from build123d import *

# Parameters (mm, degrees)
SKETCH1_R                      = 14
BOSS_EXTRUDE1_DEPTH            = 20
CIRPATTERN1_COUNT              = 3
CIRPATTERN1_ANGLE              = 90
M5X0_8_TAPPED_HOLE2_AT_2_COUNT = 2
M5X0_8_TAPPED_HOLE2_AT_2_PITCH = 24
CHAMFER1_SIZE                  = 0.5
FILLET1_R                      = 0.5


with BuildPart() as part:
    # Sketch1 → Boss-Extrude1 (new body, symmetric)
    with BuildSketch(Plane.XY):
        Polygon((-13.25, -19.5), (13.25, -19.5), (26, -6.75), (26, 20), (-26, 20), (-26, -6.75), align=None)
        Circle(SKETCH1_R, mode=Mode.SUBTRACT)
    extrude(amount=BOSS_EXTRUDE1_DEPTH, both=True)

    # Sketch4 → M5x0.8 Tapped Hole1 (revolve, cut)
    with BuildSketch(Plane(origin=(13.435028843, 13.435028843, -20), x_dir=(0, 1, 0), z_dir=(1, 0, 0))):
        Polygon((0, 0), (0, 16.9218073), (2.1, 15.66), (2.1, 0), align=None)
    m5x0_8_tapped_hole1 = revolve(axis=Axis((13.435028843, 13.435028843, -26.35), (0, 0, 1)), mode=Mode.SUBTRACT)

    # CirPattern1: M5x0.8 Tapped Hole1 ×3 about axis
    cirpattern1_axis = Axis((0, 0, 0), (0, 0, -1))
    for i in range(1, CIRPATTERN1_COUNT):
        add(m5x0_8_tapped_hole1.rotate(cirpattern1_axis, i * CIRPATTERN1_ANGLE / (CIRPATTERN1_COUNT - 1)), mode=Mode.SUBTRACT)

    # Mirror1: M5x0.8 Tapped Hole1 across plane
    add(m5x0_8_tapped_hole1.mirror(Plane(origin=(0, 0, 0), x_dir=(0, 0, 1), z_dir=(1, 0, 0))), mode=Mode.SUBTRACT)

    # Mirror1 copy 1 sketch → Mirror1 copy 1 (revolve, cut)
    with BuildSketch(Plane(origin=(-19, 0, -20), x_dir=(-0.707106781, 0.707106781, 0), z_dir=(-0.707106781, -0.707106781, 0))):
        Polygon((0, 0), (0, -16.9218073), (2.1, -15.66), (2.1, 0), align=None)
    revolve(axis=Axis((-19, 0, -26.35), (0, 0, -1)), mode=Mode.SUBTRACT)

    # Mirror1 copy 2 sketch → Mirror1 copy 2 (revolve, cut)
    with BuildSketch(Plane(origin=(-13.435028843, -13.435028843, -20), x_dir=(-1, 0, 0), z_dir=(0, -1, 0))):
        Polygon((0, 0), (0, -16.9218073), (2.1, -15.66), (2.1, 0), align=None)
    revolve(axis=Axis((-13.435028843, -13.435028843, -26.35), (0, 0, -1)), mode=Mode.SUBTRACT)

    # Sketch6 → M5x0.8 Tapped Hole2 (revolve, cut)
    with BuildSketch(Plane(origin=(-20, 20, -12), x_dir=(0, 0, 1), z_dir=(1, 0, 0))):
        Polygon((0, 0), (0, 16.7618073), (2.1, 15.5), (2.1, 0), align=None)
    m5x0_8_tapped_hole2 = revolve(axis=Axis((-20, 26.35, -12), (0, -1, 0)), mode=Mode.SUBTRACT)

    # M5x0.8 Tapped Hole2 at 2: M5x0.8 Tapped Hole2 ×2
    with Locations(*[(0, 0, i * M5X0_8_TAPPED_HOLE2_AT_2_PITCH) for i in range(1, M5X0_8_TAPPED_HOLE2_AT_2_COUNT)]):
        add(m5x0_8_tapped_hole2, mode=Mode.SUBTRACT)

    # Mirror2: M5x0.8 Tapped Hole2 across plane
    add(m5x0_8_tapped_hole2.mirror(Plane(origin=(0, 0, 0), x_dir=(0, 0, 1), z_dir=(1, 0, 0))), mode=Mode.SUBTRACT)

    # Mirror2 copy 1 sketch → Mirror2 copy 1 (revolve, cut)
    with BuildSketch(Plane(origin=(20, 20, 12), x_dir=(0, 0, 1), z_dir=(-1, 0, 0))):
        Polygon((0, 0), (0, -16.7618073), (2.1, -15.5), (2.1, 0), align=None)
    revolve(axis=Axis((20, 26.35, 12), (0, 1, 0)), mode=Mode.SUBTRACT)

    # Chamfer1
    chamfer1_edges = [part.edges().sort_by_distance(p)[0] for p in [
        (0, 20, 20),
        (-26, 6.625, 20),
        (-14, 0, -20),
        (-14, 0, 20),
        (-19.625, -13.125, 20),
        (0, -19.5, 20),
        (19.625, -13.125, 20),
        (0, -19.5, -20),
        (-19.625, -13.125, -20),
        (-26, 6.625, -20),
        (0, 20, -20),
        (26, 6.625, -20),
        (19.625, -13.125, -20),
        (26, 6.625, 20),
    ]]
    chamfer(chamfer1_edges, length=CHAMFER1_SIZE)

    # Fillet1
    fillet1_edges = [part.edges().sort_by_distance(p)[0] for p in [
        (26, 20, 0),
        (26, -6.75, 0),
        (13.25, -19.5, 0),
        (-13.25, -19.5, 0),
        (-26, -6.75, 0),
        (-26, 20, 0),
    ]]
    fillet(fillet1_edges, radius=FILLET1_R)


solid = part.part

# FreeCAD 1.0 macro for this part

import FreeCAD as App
import Part
import Sketcher

V = App.Vector
Q = App.Units.Quantity


def edges_at(feature, points):
    """Names of the edges that pass closest to the given points."""
    edges = feature.Shape.Edges
    near = lambda p: min(range(len(edges)), key=lambda i: edges[i].distToShape(Part.Vertex(*p))[0])
    return sorted({f"Edge{near(p) + 1}" for p in points})


def add_polygon(sketch, points):
    """Adds a closed chain of lines whose ends are joined by coincident constraints."""
    first, n = sketch.GeometryCount, len(points)
    for a, b in zip(points, points[1:] + points[:1]):
        sketch.addGeometry(Part.LineSegment(App.Vector(*a, 0), App.Vector(*b, 0)), False)
    for i in range(n):
        sketch.addConstraint(Sketcher.Constraint("Coincident", first + i, 2, first + (i + 1) % n, 1))

doc = App.newDocument("Part")
body = doc.addObject("PartDesign::Body", "Body")

# Sketch on XY plane
sketch1 = body.newObject("Sketcher::SketchObject", "Sketch")
sketch1.AttachmentSupport = (doc.getObject("XY_Plane"), [""])
sketch1.MapMode = "FlatFace"
add_polygon(sketch1, [(-13.25, -19.5), (13.25, -19.5), (26, -6.75), (26, 20), (-26, 20), (-26, -6.75)])  # lines 0-5
sketch1.addGeometry(Part.Circle(V(0, 0, 0), V(0, 0, 1), 14), False)  # 6
sketch1.addConstraint(Sketcher.Constraint("Horizontal", 0))
sketch1.addConstraint(Sketcher.Constraint("Vertical", 2))
sketch1.addConstraint(Sketcher.Constraint("Horizontal", 3))
sketch1.addConstraint(Sketcher.Constraint("Vertical", 4))
sketch1.addConstraint(Sketcher.Constraint("Coincident", 6, 3, -1, 1))
sketch1.addConstraint(Sketcher.Constraint("Symmetric", 1, 2, 4, 2, -2))
sketch1.addConstraint(Sketcher.Constraint("Perpendicular", 1, 5))
sketch1.addConstraint(Sketcher.Constraint("Equal", 1, 5))
sketch1.addConstraint(Sketcher.Constraint("Diameter", 6, 28.0))
sketch1.addConstraint(Sketcher.Constraint("DistanceX", 3, 2, 3, 1, 52.0))
sketch1.addConstraint(Sketcher.Constraint("DistanceX", 0, 1, 0, 2, 26.5))
sketch1.addConstraint(Sketcher.Constraint("DistanceY", -1, 1, 2, 2, 20.0))
sketch1.addConstraint(Sketcher.Constraint("DistanceY", 2, 1, 2, 2, 26.75))
pad1 = body.newObject("PartDesign::Pad", "Pad")
pad1.Profile = sketch1
pad1.Length = 40
pad1.Midplane = True

# Sketch on YZ plane
sketch2 = body.newObject("Sketcher::SketchObject", "Sketch001")
sketch2.AttachmentSupport = (doc.getObject("YZ_Plane"), [""])
sketch2.MapMode = "FlatFace"
sketch2.AttachmentOffset = App.Placement(V(0, 0, 13.435029), App.Rotation())
add_polygon(sketch2, [(13.435029, -3.078193), (13.435029, -20), (15.535029, -20), (15.535029, -4.34)])  # lines 0-3
sketch2.addGeometry(Part.LineSegment(V(13.435029, -20, 0), V(13.435029, -3.078193, 0)), True)  # axis
sketch2.addConstraint(Sketcher.Constraint("Vertical", 0))
sketch2.addConstraint(Sketcher.Constraint("Horizontal", 1))
sketch2.addConstraint(Sketcher.Constraint("Vertical", 2))
sketch2.addConstraint(Sketcher.Constraint("Vertical", 4))
sketch2.addConstraint(Sketcher.Constraint("Coincident", 4, 1, 0, 2))
sketch2.addConstraint(Sketcher.Constraint("Equal", 0, 4))
sketch2.addConstraint(Sketcher.Constraint("Angle", 3, Q("149 deg")))
sketch2.addConstraint(Sketcher.Constraint("DistanceX", 1, 1, 1, 2, 2.1))
sketch2.addConstraint(Sketcher.Constraint("DistanceY", 0, 2, -1, 1, 20.0))
sketch2.addConstraint(Sketcher.Constraint("DistanceY", 2, 1, 2, 2, 15.66))
sketch2.addConstraint(Sketcher.Constraint("DistanceX", -1, 1, 0, 2, 13.435029))
groove = body.newObject("PartDesign::Groove", "Groove")
groove.Profile = sketch2
groove.ReferenceAxis = (sketch2, ["Axis0"])
groove.Angle = 360
doc.recompute()

polarpattern = body.newObject("PartDesign::PolarPattern", "PolarPattern")
polarpattern.Originals = [groove]
polarpattern.Axis = (doc.getObject("Z_Axis"), [""])
polarpattern.Angle = 90
polarpattern.Occurrences = 3
polarpattern.Reversed = True
body.Tip = polarpattern
doc.recompute()

mirrored = body.newObject("PartDesign::Mirrored", "Mirrored")
mirrored.Originals = [groove]
mirrored.MirrorPlane = (doc.getObject("YZ_Plane"), [""])
body.Tip = mirrored

# Sketch on an angled plane
sketch3 = body.newObject("Sketcher::SketchObject", "Sketch002")
sketch3.Placement = App.Placement(V(-19, 0, -20), App.Rotation(V(-0.707106781, 0.707106781, 0), V(0, 0, -0.999999999), V(-0.707106781, -0.707106781, 0), "ZXY"))
add_polygon(sketch3, [(0, 0), (0, -16.921807), (2.1, -15.66), (2.1, 0)])  # lines 0-3
sketch3.addConstraint(Sketcher.Constraint("Vertical", 0))
sketch3.addConstraint(Sketcher.Constraint("Vertical", 2))
sketch3.addConstraint(Sketcher.Constraint("Horizontal", 3))
sketch3.addConstraint(Sketcher.Constraint("Coincident", 3, 2, -1, 1))
sketch3.addConstraint(Sketcher.Constraint("Angle", 1, Q("31 deg")))
sketch3.addConstraint(Sketcher.Constraint("DistanceX", 3, 2, 3, 1, 2.1))
sketch3.addConstraint(Sketcher.Constraint("DistanceY", 2, 1, 2, 2, 15.66))
groove2 = body.newObject("PartDesign::Groove", "Groove001")
groove2.Profile = sketch3
groove2.ReferenceAxis = (sketch3, ["V_Axis"])
groove2.Angle = 360

# Sketch on XZ plane
sketch4 = body.newObject("Sketcher::SketchObject", "Sketch003")
sketch4.AttachmentSupport = (doc.getObject("XZ_Plane"), [""])
sketch4.MapMode = "FlatFace"
sketch4.AttachmentOffset = App.Placement(V(0, 0, 13.435029), App.Rotation())
add_polygon(sketch4, [(-13.435029, -20), (-13.435029, -3.078193), (-15.535029, -4.34), (-15.535029, -20)])  # lines 0-3
sketch4.addGeometry(Part.LineSegment(V(-13.435029, -3.078193, 0), V(-13.435029, -20, 0)), True)  # axis
sketch4.addConstraint(Sketcher.Constraint("Vertical", 0))
sketch4.addConstraint(Sketcher.Constraint("Vertical", 2))
sketch4.addConstraint(Sketcher.Constraint("Horizontal", 3))
sketch4.addConstraint(Sketcher.Constraint("Vertical", 4))
sketch4.addConstraint(Sketcher.Constraint("Coincident", 4, 1, 0, 2))
sketch4.addConstraint(Sketcher.Constraint("Horizontal", 2, 2, 4, 2))
sketch4.addConstraint(Sketcher.Constraint("Angle", 1, Q("-149 deg")))
sketch4.addConstraint(Sketcher.Constraint("DistanceX", 3, 1, 3, 2, 2.1))
sketch4.addConstraint(Sketcher.Constraint("DistanceY", 2, 2, -1, 1, 20.0))
sketch4.addConstraint(Sketcher.Constraint("DistanceY", 2, 2, 2, 1, 15.66))
sketch4.addConstraint(Sketcher.Constraint("DistanceX", 0, 2, -1, 1, 13.435029))
groove3 = body.newObject("PartDesign::Groove", "Groove002")
groove3.Profile = sketch4
groove3.ReferenceAxis = (sketch4, ["Axis0"])
groove3.Angle = 360

# Sketch on YZ plane
sketch5 = body.newObject("Sketcher::SketchObject", "Sketch004")
sketch5.AttachmentSupport = (doc.getObject("YZ_Plane"), [""])
sketch5.MapMode = "FlatFace"
sketch5.AttachmentOffset = App.Placement(V(0, 0, -20), App.Rotation())
add_polygon(sketch5, [(3.238193, -12), (20, -12), (20, -9.9), (4.5, -9.9)])  # lines 0-3
sketch5.addGeometry(Part.LineSegment(V(20, -12, 0), V(3.238193, -12, 0)), True)  # axis
sketch5.addConstraint(Sketcher.Constraint("Horizontal", 0))
sketch5.addConstraint(Sketcher.Constraint("Vertical", 1))
sketch5.addConstraint(Sketcher.Constraint("Horizontal", 2))
sketch5.addConstraint(Sketcher.Constraint("Horizontal", 4))
sketch5.addConstraint(Sketcher.Constraint("Coincident", 4, 1, 0, 2))
sketch5.addConstraint(Sketcher.Constraint("Equal", 0, 4))
sketch5.addConstraint(Sketcher.Constraint("Angle", 3, Q("-121 deg")))
sketch5.addConstraint(Sketcher.Constraint("DistanceX", 2, 2, 2, 1, 15.5))
sketch5.addConstraint(Sketcher.Constraint("DistanceY", 1, 1, 1, 2, 2.1))
sketch5.addConstraint(Sketcher.Constraint("DistanceX", -1, 1, 0, 2, 20.0))
sketch5.addConstraint(Sketcher.Constraint("DistanceY", 0, 2, -1, 1, 12.0))
groove4 = body.newObject("PartDesign::Groove", "Groove003")
groove4.Profile = sketch5
groove4.ReferenceAxis = (sketch5, ["Axis0"])
groove4.Angle = 360
doc.recompute()

linearpattern = body.newObject("PartDesign::LinearPattern", "LinearPattern")
linearpattern.Originals = [groove4]
linearpattern.Direction = (doc.getObject("Z_Axis"), [""])
linearpattern.Mode = "offset"
linearpattern.Offset = 24
linearpattern.Occurrences = 2
body.Tip = linearpattern
doc.recompute()

mirrored2 = body.newObject("PartDesign::Mirrored", "Mirrored001")
mirrored2.Originals = [groove4]
mirrored2.MirrorPlane = (doc.getObject("YZ_Plane"), [""])
body.Tip = mirrored2

# Sketch on YZ plane
sketch6 = body.newObject("Sketcher::SketchObject", "Sketch005")
sketch6.AttachmentSupport = (doc.getObject("YZ_Plane"), [""])
sketch6.MapMode = "FlatFace"
sketch6.AttachmentOffset = App.Placement(V(0, 0, 20), App.Rotation())
add_polygon(sketch6, [(20, 12), (3.238193, 12), (4.5, 14.1), (20, 14.1)])  # lines 0-3
sketch6.addGeometry(Part.LineSegment(V(3.238193, 12, 0), V(20, 12, 0)), True)  # axis
sketch6.addConstraint(Sketcher.Constraint("Horizontal", 0))
sketch6.addConstraint(Sketcher.Constraint("Horizontal", 2))
sketch6.addConstraint(Sketcher.Constraint("Vertical", 3))
sketch6.addConstraint(Sketcher.Constraint("Horizontal", 4))
sketch6.addConstraint(Sketcher.Constraint("Coincident", 4, 1, 0, 2))
sketch6.addConstraint(Sketcher.Constraint("Vertical", 2, 2, 4, 2))
sketch6.addConstraint(Sketcher.Constraint("Angle", 1, Q("59 deg")))
sketch6.addConstraint(Sketcher.Constraint("DistanceX", 2, 1, 2, 2, 15.5))
sketch6.addConstraint(Sketcher.Constraint("DistanceY", 3, 2, 3, 1, 2.1))
sketch6.addConstraint(Sketcher.Constraint("DistanceY", -1, 1, 0, 2, 12.0))
sketch6.addConstraint(Sketcher.Constraint("DistanceX", -1, 1, 2, 2, 20.0))
groove5 = body.newObject("PartDesign::Groove", "Groove004")
groove5.Profile = sketch6
groove5.ReferenceAxis = (sketch6, ["Axis0"])
groove5.Angle = 360
doc.recompute()

chamfer = body.newObject("PartDesign::Chamfer", "Chamfer")
chamfer.Base = (groove5, edges_at(groove5, [
    (0, 20, 20),
    (-26, 6.625, 20),
    (-14, 0, -20),
    (-14, 0, 20),
    (-19.625, -13.125, 20),
    (0, -19.5, 20),
    (19.625, -13.125, 20),
    (0, -19.5, -20),
    (-19.625, -13.125, -20),
    (-26, 6.625, -20),
    (0, 20, -20),
    (26, 6.625, -20),
    (19.625, -13.125, -20),
    (26, 6.625, 20),
]))
chamfer.Size = 0.5
doc.recompute()

fillet = body.newObject("PartDesign::Fillet", "Fillet")
fillet.Base = (chamfer, edges_at(chamfer, [
    (26, 20, 0),
    (26, -6.75, 0),
    (13.25, -19.5, 0),
    (-13.25, -19.5, 0),
    (-26, -6.75, 0),
    (-26, 20, 0),
]))
fillet.Radius = 0.5

doc.recompute()
